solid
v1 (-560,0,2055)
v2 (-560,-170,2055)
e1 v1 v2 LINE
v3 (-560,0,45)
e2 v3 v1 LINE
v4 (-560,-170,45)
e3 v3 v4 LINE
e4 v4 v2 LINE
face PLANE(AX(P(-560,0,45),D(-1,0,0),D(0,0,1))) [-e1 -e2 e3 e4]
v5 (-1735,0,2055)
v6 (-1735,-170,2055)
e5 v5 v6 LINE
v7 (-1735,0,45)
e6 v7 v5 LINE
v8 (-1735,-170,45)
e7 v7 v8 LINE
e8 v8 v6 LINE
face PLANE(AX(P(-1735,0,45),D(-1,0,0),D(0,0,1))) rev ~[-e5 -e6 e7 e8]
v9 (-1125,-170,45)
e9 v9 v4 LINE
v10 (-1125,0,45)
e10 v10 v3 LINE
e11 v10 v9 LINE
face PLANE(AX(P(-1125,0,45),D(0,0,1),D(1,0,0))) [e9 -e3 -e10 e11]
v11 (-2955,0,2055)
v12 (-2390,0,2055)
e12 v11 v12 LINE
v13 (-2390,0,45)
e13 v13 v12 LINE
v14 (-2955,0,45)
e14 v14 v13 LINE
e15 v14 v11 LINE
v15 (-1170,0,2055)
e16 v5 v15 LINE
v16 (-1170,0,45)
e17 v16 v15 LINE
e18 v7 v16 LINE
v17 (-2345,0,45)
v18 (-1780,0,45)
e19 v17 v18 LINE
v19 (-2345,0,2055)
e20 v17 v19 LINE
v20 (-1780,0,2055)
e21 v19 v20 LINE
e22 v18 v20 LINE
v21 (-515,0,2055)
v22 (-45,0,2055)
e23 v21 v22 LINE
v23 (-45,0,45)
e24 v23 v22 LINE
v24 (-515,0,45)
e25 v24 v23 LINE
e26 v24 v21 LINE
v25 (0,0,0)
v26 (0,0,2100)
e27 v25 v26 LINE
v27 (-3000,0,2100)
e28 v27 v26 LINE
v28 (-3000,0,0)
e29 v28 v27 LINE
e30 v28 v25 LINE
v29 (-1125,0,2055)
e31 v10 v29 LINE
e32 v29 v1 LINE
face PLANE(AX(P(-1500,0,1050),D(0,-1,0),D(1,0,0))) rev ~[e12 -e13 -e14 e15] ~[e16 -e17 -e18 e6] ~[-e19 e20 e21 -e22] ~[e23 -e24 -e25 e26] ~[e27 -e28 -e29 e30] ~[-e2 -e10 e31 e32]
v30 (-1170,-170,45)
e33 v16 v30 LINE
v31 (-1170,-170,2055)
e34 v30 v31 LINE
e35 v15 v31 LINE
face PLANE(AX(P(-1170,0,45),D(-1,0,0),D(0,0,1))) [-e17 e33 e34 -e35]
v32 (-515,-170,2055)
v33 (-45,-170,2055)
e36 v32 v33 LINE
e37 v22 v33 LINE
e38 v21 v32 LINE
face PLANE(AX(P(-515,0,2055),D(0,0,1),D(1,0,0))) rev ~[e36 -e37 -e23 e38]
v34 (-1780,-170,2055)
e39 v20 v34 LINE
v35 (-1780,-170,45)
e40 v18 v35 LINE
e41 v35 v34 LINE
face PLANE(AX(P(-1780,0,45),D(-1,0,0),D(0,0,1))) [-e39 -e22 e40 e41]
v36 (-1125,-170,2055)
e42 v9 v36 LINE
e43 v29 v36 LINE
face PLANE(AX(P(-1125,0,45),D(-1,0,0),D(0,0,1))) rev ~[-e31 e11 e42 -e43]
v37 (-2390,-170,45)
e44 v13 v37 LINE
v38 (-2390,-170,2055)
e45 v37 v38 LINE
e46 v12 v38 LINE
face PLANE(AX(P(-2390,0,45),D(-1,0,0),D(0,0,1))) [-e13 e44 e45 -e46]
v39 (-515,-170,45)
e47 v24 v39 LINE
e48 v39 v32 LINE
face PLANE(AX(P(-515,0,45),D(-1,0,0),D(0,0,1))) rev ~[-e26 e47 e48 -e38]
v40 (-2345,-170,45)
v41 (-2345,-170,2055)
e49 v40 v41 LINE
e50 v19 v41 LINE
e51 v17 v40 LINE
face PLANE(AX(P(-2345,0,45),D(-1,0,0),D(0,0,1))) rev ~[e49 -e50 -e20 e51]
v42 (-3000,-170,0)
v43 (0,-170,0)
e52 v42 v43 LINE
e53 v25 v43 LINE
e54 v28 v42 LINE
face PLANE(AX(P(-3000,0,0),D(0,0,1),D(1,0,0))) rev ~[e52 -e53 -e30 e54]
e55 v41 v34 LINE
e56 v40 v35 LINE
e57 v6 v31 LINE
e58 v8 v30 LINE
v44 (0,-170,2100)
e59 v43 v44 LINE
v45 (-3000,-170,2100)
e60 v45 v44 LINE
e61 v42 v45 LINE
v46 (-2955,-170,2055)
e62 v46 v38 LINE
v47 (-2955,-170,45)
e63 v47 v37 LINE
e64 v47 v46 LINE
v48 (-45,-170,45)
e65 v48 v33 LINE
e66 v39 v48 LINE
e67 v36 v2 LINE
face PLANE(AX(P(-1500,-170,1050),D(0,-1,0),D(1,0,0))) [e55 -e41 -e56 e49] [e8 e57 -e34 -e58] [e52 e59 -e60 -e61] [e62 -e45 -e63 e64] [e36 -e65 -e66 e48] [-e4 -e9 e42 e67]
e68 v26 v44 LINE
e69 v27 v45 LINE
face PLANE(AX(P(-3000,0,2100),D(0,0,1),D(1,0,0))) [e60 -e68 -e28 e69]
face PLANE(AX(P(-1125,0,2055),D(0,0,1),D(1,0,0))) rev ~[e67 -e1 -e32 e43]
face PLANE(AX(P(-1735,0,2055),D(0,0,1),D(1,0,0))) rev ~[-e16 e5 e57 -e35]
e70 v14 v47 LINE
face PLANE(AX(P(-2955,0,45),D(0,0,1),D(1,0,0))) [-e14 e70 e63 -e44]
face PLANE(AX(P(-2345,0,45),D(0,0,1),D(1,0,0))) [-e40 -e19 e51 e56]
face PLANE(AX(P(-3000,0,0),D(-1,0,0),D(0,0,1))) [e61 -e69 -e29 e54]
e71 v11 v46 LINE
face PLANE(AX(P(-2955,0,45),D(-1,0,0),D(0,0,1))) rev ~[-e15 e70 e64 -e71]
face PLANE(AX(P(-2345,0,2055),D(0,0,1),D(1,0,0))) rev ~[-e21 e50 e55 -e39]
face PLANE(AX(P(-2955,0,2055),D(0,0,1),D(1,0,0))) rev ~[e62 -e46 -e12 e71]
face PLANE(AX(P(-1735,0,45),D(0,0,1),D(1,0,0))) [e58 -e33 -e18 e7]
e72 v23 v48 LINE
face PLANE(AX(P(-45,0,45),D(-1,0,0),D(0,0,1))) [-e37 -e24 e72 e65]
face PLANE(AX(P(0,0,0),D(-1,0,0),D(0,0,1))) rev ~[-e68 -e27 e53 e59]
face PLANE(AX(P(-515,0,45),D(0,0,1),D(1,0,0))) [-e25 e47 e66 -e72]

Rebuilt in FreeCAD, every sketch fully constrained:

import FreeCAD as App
import Part
import Sketcher


def add_polygon(sketch, points):
    """Adds a closed chain of lines whose ends are joined by coincident constraints."""
    first, n = sketch.GeometryCount, len(points)
    for a, b in zip(points, points[1:] + points[:1]):
        sketch.addGeometry(Part.LineSegment(App.Vector(*a, 0), App.Vector(*b, 0)), False)
    for i in range(n):
        sketch.addConstraint(Sketcher.Constraint("Coincident", first + i, 2, first + (i + 1) % n, 1))

doc = App.newDocument("Part")
body = doc.addObject("PartDesign::Body", "Body")

# Sketch on XZ plane
sketch1 = body.newObject("Sketcher::SketchObject", "Sketch")
sketch1.AttachmentSupport = (doc.getObject("XZ_Plane"), [""])
sketch1.MapMode = "FlatFace"
add_polygon(sketch1, [(-3000, 2100), (-3000, 0), (0, 0), (0, 2100)])  # lines 0-3
add_polygon(sketch1, [(-2390, 45), (-2955, 45), (-2955, 2055), (-2390, 2055)])  # lines 4-7
add_polygon(sketch1, [(-1780, 45), (-2345, 45), (-2345, 2055), (-1780, 2055)])  # lines 8-11
add_polygon(sketch1, [(-1170, 45), (-1735, 45), (-1735, 2055), (-1170, 2055)])  # lines 12-15
add_polygon(sketch1, [(-560, 45), (-1125, 45), (-1125, 2055), (-560, 2055)])  # lines 16-19
add_polygon(sketch1, [(-45, 45), (-515, 45), (-515, 2055), (-45, 2055)])  # lines 20-23
sketch1.addConstraint([
    Sketcher.Constraint("Vertical", 0),
    Sketcher.Constraint("Horizontal", 1),
    Sketcher.Constraint("Vertical", 2),
    Sketcher.Constraint("Horizontal", 3),
    Sketcher.Constraint("Horizontal", 4),
    Sketcher.Constraint("Vertical", 5),
    Sketcher.Constraint("Horizontal", 6),
    Sketcher.Constraint("Vertical", 7),
    Sketcher.Constraint("Horizontal", 8),
    Sketcher.Constraint("Vertical", 9),
    Sketcher.Constraint("Horizontal", 10),
    Sketcher.Constraint("Vertical", 11),
    Sketcher.Constraint("Horizontal", 12),
    Sketcher.Constraint("Vertical", 13),
    Sketcher.Constraint("Horizontal", 14),
    Sketcher.Constraint("Vertical", 15),
    Sketcher.Constraint("Horizontal", 16),
    Sketcher.Constraint("Vertical", 17),
    Sketcher.Constraint("Horizontal", 18),
    Sketcher.Constraint("Vertical", 19),
    Sketcher.Constraint("Horizontal", 20),
    Sketcher.Constraint("Vertical", 21),
    Sketcher.Constraint("Horizontal", 22),
    Sketcher.Constraint("Vertical", 23),
    Sketcher.Constraint("Coincident", 1, 2, -1, 1),
    Sketcher.Constraint("Horizontal", 7, 2, 8, 2),
    Sketcher.Constraint("Horizontal", 6, 2, 9, 2),
    Sketcher.Constraint("Horizontal", 11, 2, 12, 2),
    Sketcher.Constraint("Horizontal", 10, 2, 13, 2),
    Sketcher.Constraint("Horizontal", 15, 2, 16, 2),
    Sketcher.Constraint("Horizontal", 14, 2, 17, 2),
    Sketcher.Constraint("Horizontal", 19, 2, 20, 2),
    Sketcher.Constraint("Horizontal", 18, 2, 21, 2),
    Sketcher.Constraint("Equal", 6, 8),
    Sketcher.Constraint("Equal", 10, 12),
    Sketcher.Constraint("Equal", 14, 16),
    Sketcher.Constraint("DistanceX", 1, 1, 1, 2, 3000.0),
    Sketcher.Constraint("DistanceX", 4, 2, 4, 1, 565.0),
    Sketcher.Constraint("DistanceX", 20, 2, 20, 1, 470.0),
    Sketcher.Constraint("DistanceY", 0, 2, 0, 1, 2100.0),
    Sketcher.Constraint("DistanceY", 5, 1, 5, 2, 2010.0),
    Sketcher.Constraint("DistanceX", 4, 2, -1, 1, 2955.0),
    Sketcher.Constraint("DistanceY", -1, 1, 4, 2, 45.0),
    Sketcher.Constraint("DistanceX", 8, 2, -1, 1, 2345.0),
    Sketcher.Constraint("DistanceX", 12, 2, -1, 1, 1735.0),
    Sketcher.Constraint("DistanceX", 16, 2, -1, 1, 1125.0),
    Sketcher.Constraint("DistanceX", 20, 2, -1, 1, 515.0),
])
pad1 = body.newObject("PartDesign::Pad", "Pad")
pad1.Profile = sketch1
pad1.Length = 170

doc.recompute()
